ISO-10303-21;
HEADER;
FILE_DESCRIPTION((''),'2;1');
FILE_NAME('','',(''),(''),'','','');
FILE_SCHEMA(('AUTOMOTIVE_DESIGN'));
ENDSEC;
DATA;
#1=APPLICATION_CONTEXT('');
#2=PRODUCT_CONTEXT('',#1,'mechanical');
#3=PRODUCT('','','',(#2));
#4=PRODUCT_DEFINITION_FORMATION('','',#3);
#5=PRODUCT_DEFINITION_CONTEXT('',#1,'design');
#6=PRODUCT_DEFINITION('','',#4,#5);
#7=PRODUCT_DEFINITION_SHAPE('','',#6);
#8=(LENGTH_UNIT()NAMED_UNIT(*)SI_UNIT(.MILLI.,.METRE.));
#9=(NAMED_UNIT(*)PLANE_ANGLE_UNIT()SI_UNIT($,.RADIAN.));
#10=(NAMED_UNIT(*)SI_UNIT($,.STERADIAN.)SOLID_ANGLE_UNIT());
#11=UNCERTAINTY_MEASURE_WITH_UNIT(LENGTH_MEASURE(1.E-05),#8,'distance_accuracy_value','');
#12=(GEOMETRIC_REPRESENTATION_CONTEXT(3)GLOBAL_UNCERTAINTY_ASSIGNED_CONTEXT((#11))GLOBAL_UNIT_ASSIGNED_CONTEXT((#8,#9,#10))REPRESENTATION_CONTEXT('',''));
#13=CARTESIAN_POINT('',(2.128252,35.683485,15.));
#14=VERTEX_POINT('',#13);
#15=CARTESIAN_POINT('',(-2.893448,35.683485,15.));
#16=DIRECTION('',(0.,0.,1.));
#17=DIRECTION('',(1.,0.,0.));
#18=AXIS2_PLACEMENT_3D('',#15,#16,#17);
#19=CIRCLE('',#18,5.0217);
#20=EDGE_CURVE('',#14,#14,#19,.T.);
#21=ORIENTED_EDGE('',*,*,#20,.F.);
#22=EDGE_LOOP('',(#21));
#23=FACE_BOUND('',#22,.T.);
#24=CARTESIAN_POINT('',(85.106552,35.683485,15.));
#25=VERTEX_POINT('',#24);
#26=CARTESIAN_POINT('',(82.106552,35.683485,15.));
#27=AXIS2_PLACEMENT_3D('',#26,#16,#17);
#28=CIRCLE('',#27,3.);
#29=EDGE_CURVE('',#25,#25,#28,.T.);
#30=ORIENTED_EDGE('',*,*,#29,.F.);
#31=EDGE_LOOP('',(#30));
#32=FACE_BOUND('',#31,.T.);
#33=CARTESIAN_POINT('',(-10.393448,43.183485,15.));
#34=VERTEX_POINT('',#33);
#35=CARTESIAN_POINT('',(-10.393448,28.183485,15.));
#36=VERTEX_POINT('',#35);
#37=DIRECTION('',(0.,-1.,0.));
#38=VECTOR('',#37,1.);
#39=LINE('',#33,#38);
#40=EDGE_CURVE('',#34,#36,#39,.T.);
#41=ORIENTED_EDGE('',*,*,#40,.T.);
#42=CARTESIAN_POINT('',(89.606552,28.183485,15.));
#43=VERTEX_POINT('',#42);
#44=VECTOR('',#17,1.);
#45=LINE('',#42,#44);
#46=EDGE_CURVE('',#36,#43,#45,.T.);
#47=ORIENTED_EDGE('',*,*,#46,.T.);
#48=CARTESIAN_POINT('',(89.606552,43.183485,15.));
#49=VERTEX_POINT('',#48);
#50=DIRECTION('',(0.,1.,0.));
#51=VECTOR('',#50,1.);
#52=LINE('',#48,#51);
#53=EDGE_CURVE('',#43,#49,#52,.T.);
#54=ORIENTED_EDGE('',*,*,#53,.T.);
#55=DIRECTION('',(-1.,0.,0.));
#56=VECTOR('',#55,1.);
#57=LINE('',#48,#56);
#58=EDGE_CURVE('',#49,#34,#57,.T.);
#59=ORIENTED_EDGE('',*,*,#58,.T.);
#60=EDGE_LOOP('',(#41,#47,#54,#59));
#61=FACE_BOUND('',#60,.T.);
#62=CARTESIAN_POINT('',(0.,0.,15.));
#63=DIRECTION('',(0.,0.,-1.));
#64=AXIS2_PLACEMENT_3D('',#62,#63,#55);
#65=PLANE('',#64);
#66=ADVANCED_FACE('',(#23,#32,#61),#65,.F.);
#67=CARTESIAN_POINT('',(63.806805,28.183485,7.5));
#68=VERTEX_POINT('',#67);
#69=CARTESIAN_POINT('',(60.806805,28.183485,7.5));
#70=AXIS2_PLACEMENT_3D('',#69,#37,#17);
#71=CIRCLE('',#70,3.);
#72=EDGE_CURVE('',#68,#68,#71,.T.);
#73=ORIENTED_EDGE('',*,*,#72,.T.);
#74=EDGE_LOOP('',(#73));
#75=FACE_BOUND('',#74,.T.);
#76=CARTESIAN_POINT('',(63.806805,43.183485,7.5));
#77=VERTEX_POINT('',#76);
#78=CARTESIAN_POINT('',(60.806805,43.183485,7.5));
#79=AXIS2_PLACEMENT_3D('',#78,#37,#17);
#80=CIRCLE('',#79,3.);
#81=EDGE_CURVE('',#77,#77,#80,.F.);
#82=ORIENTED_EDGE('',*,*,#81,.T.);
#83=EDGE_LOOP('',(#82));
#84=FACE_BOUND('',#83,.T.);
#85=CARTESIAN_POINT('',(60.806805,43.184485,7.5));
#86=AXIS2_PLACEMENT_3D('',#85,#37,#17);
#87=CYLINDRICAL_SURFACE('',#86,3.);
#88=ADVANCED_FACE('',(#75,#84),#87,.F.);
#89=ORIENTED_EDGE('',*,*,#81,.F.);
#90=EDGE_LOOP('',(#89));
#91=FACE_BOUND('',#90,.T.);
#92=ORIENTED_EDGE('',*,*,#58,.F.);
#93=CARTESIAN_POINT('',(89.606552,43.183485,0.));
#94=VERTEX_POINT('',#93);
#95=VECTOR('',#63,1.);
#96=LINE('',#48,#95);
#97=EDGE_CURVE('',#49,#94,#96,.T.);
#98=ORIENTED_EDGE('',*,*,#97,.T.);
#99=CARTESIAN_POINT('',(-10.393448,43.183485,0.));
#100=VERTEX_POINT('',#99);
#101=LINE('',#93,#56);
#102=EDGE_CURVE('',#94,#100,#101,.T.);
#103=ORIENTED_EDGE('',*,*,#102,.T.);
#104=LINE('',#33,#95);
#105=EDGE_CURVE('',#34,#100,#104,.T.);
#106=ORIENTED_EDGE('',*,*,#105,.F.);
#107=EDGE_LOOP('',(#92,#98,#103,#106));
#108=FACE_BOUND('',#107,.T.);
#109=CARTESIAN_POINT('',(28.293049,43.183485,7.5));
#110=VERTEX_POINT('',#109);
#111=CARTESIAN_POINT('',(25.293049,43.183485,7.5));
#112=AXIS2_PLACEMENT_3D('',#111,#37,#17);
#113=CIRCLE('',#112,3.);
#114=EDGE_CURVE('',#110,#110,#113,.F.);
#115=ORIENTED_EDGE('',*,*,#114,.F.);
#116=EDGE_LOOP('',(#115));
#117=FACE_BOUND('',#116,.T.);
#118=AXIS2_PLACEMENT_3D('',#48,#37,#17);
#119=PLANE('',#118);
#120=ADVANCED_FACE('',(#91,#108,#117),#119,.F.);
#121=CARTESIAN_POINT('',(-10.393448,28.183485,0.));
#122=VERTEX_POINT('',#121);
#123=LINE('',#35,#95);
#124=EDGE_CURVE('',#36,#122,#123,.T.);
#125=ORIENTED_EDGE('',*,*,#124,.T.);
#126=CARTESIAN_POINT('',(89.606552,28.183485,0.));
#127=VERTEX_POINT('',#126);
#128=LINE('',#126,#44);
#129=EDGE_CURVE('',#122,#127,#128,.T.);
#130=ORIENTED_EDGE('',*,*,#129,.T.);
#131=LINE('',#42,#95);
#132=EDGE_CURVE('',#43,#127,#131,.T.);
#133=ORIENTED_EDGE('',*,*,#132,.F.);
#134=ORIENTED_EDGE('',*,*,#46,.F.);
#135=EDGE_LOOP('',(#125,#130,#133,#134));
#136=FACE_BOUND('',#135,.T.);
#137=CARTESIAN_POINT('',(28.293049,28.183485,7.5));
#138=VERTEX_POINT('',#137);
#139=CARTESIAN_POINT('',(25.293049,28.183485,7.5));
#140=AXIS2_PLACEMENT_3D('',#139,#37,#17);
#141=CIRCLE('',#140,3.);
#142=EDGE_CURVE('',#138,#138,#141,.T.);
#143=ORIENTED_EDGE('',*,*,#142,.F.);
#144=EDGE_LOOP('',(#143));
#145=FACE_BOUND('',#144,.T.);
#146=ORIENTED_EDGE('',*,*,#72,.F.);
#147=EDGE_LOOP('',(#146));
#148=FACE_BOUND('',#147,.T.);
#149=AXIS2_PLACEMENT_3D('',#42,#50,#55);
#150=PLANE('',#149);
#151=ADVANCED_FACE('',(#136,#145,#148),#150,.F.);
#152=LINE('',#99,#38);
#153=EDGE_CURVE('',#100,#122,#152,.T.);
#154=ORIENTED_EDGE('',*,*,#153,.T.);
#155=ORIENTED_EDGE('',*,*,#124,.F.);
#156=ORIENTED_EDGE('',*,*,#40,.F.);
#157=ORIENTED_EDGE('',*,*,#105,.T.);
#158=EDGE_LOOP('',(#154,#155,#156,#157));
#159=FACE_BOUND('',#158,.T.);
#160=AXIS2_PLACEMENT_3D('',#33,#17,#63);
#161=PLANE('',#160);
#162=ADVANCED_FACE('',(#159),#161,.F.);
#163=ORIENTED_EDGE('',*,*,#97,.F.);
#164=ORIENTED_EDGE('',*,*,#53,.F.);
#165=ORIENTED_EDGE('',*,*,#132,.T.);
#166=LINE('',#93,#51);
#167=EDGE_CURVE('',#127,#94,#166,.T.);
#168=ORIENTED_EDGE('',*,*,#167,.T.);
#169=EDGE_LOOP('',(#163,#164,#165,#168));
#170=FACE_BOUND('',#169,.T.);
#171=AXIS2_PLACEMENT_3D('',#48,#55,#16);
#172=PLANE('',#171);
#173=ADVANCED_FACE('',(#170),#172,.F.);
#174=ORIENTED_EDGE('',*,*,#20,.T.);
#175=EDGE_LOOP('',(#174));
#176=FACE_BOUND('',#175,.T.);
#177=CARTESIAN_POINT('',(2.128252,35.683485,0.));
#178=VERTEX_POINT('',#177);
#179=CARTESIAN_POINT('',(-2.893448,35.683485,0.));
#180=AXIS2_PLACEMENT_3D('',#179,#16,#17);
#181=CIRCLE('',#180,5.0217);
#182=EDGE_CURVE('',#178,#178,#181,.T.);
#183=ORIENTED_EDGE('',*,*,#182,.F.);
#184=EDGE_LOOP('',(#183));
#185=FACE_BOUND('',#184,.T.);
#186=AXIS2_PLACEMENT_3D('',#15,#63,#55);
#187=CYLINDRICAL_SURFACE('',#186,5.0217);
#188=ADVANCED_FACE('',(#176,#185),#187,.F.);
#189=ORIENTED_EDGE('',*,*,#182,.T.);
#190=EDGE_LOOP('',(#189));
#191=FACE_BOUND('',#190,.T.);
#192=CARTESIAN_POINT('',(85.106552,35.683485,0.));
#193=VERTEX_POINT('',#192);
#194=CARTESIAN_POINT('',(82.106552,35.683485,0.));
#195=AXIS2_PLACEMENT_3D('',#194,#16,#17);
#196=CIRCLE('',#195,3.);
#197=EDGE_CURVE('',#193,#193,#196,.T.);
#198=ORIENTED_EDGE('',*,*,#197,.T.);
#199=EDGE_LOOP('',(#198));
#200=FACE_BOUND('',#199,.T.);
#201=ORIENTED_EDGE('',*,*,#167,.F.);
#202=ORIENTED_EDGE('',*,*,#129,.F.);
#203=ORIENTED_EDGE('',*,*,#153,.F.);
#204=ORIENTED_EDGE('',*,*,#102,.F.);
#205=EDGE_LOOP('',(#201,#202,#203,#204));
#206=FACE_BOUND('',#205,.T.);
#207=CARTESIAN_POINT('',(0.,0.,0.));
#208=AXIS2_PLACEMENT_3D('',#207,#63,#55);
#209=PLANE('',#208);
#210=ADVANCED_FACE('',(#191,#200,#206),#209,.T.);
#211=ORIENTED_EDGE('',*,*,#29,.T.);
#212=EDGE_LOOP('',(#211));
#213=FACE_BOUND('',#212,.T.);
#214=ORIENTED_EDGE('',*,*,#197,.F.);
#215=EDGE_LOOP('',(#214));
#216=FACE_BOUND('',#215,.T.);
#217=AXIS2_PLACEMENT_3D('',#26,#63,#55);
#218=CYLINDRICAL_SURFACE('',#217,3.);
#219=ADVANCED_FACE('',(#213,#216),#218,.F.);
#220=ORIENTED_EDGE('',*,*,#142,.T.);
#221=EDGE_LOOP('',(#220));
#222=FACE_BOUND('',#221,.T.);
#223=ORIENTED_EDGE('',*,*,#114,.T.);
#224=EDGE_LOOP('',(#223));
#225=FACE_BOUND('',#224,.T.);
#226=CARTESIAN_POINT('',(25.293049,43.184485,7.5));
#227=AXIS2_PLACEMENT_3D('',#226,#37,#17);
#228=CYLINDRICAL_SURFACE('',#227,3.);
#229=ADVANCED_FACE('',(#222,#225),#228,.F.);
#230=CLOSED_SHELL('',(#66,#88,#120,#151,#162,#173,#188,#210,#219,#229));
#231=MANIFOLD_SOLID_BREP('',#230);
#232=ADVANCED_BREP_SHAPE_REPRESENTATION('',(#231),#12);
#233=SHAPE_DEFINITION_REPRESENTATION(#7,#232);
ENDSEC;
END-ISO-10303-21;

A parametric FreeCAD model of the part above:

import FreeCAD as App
import Part
import Sketcher

V = App.Vector
Q = App.Units.Quantity

doc = App.newDocument("Part")
body = doc.addObject("PartDesign::Body", "Body")

# Sketch on XY plane
sketch1 = doc.addObject("Sketcher::SketchObject", "Sketch")
body.addObject(sketch1)
sketch1.AttachmentSupport = (doc.XY_Plane, [""])
sketch1.MapMode = "FlatFace"
sketch1.addGeometry([
    Part.LineSegment(V(-10.4, 43.2, 0), V(-10.4, 28.2, 0)),  # 0
    Part.LineSegment(V(-10.4, 28.2, 0), V(89.6, 28.2, 0)),  # 1
    Part.LineSegment(V(89.6, 28.2, 0), V(89.6, 43.2, 0)),  # 2
    Part.LineSegment(V(89.6, 43.2, 0), V(-10.4, 43.2, 0)),  # 3
    Part.Circle(V(-2.9, 35.7, 0), V(0, 0, 1), 5),  # 4
    Part.Circle(V(82.1, 35.7, 0), V(0, 0, 1), 3),  # 5
], False)
sketch1.addConstraint([
    Sketcher.Constraint("Coincident", 0, 2, 1, 1),
    Sketcher.Constraint("Coincident", 1, 2, 2, 1),
    Sketcher.Constraint("Coincident", 2, 2, 3, 1),
    Sketcher.Constraint("Coincident", 3, 2, 0, 1),
    Sketcher.Constraint("Vertical", 0),
    Sketcher.Constraint("Horizontal", 1),
    Sketcher.Constraint("Vertical", 2),
    Sketcher.Constraint("Horizontal", 3),
    Sketcher.Constraint("Horizontal", 4, 3, 5, 3),
    Sketcher.Constraint("Diameter", 5, Q("6 mm")),
    Sketcher.Constraint("DistanceX", 1, 1, 1, 2, Q("100 mm")),
    Sketcher.Constraint("DistanceY", 0, 2, 0, 1, Q("15 mm")),
    Sketcher.Constraint("DistanceX", 4, 3, 5, 3, Q("85 mm")),
    Sketcher.Constraint("Diameter", 4, Q("10.043399 mm")),
    Sketcher.Constraint("DistanceX", 0, 2, 4, 3, Q("7.5 mm")),
    Sketcher.Constraint("DistanceY", 0, 2, 4, 3, Q("7.5 mm")),
    Sketcher.Constraint("DistanceX", 4, 3, -1, 1, Q("2.893448 mm")),
    Sketcher.Constraint("DistanceY", -1, 1, 4, 3, Q("35.683485 mm")),
])
pad1 = doc.addObject("PartDesign::Pad", "Pad")
body.addObject(pad1)
pad1.Profile = sketch1
pad1.Length = 15

# Sketch on XZ plane
sketch2 = doc.addObject("Sketcher::SketchObject", "Sketch001")
body.addObject(sketch2)
sketch2.AttachmentSupport = (doc.XZ_Plane, [""])
sketch2.MapMode = "FlatFace"
sketch2.AttachmentOffset = App.Placement(V(0, 0, -28.183485), App.Rotation())
sketch2.addGeometry(Part.Circle(V(60.8, 7.5, 0), V(0, 0, 1), 3), False)
sketch2.addConstraint([
    Sketcher.Constraint("Diameter", 0, Q("6 mm")),
    Sketcher.Constraint("DistanceY", -1, 1, 0, 3, Q("7.5 mm")),
    Sketcher.Constraint("DistanceX", -1, 1, 0, 3, Q("60.806805 mm")),
])
pocket1 = doc.addObject("PartDesign::Pocket", "Pocket")
body.addObject(pocket1)
pocket1.Profile = sketch2
pocket1.Type = "UpToFirst"

# Sketch on XZ plane
sketch3 = doc.addObject("Sketcher::SketchObject", "Sketch002")
body.addObject(sketch3)
sketch3.AttachmentSupport = (doc.XZ_Plane, [""])
sketch3.MapMode = "FlatFace"
sketch3.AttachmentOffset = App.Placement(V(0, 0, -28.183485), App.Rotation())
sketch3.addGeometry(Part.Circle(V(25.3, 7.5, 0), V(0, 0, 1), 3), False)
sketch3.addConstraint([
    Sketcher.Constraint("Diameter", 0, Q("6 mm")),
    Sketcher.Constraint("DistanceY", -1, 1, 0, 3, Q("7.5 mm")),
    Sketcher.Constraint("DistanceX", -1, 1, 0, 3, Q("25.293049 mm")),
])
pocket2 = doc.addObject("PartDesign::Pocket", "Pocket001")
body.addObject(pocket2)
pocket2.Profile = sketch3
pocket2.Type = "UpToFirst"

doc.recompute()
